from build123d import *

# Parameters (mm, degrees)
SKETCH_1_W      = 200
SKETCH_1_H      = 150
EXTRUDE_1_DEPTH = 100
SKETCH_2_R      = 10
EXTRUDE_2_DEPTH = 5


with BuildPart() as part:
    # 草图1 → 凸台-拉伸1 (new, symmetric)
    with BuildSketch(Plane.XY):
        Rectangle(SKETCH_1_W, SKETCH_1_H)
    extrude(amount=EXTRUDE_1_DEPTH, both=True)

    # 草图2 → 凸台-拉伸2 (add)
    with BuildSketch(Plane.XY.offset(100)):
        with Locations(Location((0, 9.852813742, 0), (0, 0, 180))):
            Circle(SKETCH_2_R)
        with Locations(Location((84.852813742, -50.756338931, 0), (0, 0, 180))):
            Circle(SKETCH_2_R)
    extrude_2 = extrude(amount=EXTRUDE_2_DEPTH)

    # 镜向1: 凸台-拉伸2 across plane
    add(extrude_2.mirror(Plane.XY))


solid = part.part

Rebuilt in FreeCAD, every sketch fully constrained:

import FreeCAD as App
import Part
import Sketcher
from FreeCAD import Vector
Q = App.Units.Quantity

doc = App.newDocument("Part")
body = doc.addObject("PartDesign::Body", "Body")

sketch1 = body.newObject("Sketcher::SketchObject", "Sketch")
sketch1.AttachmentSupport = (doc.getObject("XY_Plane"), [""])
sketch1.MapMode = "FlatFace"
sketch1.addGeometry(Part.LineSegment(Vector(-100, 75, 0), Vector(-100, -75, 0)), False)
sketch1.addGeometry(Part.LineSegment(Vector(-100, -75, 0), Vector(100, -75, 0)), False)
sketch1.addGeometry(Part.LineSegment(Vector(100, -75, 0), Vector(100, 75, 0)), False)
sketch1.addGeometry(Part.LineSegment(Vector(100, 75, 0), Vector(-100, 75, 0)), False)
sketch1.addConstraint(Sketcher.Constraint("Coincident", 0, 2, 1, 1))
sketch1.addConstraint(Sketcher.Constraint("Coincident", 1, 2, 2, 1))
sketch1.addConstraint(Sketcher.Constraint("Coincident", 2, 2, 3, 1))
sketch1.addConstraint(Sketcher.Constraint("Coincident", 3, 2, 0, 1))
sketch1.addConstraint(Sketcher.Constraint("Vertical", 0))
sketch1.addConstraint(Sketcher.Constraint("Horizontal", 1))
sketch1.addConstraint(Sketcher.Constraint("Vertical", 2))
sketch1.addConstraint(Sketcher.Constraint("Horizontal", 3))
sketch1.addConstraint(Sketcher.Constraint("Symmetric", 0, 2, 2, 2, -1, 1))
sketch1.addConstraint(Sketcher.Constraint("DistanceX", 1, 1, 1, 2, Q("200 mm")))
sketch1.addConstraint(Sketcher.Constraint("DistanceY", 0, 2, 0, 1, Q("150 mm")))
pad1 = body.newObject("PartDesign::Pad", "Pad")
pad1.Profile = sketch1
pad1.Length = 200
pad1.Midplane = True

sketch2 = body.newObject("Sketcher::SketchObject", "Sketch001")
sketch2.AttachmentSupport = (doc.getObject("XY_Plane"), [""])
sketch2.MapMode = "FlatFace"
sketch2.AttachmentOffset = App.Placement(Vector(0, 0, 100), App.Rotation())
sketch2.addGeometry(Part.Circle(Vector(0, 9.852814, 0), Vector(0, 0, 1), 10), False)
sketch2.addGeometry(Part.Circle(Vector(84.852814, -50.756339, 0), Vector(0, 0, 1), 10), False)
sketch2.addConstraint(Sketcher.Constraint("Equal", 0, 1))
sketch2.addConstraint(Sketcher.Constraint("PointOnObject", 0, 3, -2))
sketch2.addConstraint(Sketcher.Constraint("Diameter", 0, Q("20 mm")))
sketch2.addConstraint(Sketcher.Constraint("DistanceY", 1, 3, -1, 1, Q("50.756339 mm")))
sketch2.addConstraint(Sketcher.Constraint("DistanceY", -1, 1, 0, 3, Q("9.852814 mm")))
sketch2.addConstraint(Sketcher.Constraint("DistanceX", -1, 1, 1, 3, Q("84.852814 mm")))
pad2 = body.newObject("PartDesign::Pad", "Pad001")
pad2.Profile = sketch2
pad2.Length = 5
doc.recompute()

mirrored = body.newObject("PartDesign::Mirrored", "Mirrored")
mirrored.Originals = [pad2]
mirrored.MirrorPlane = (doc.getObject("XY_Plane"), [""])
body.Tip = mirrored

doc.recompute()
